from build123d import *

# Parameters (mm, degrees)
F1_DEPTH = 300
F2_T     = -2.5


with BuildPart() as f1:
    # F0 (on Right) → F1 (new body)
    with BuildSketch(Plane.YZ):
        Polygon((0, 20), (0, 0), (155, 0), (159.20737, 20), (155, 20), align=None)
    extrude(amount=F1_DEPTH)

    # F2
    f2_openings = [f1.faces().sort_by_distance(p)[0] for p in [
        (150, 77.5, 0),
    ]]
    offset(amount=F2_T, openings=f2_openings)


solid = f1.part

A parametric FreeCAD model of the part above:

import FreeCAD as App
import Part
import Sketcher

V = App.Vector
Q = App.Units.Quantity


def faces_at(feature, points):
    """Names of the faces that lie closest to the given points."""
    faces = feature.Shape.Faces
    near = lambda p: min(range(len(faces)), key=lambda i: faces[i].distToShape(Part.Vertex(*p))[0])
    return sorted({f"Face{near(p) + 1}" for p in points})

doc = App.newDocument("Part")
body = doc.addObject("PartDesign::Body", "Body")

# Sketch on YZ plane
sketch1 = doc.addObject("Sketcher::SketchObject", "Sketch")
body.addObject(sketch1)
sketch1.AttachmentSupport = (doc.YZ_Plane, [""])
sketch1.MapMode = "FlatFace"
sketch1.addGeometry([
    Part.LineSegment(V(0, 20, 0), V(0, 0, 0)),
    Part.LineSegment(V(0, 0, 0), V(155, 0, 0)),
    Part.LineSegment(V(155, 0, 0), V(159.20737, 20, 0)),
    Part.LineSegment(V(159.20737, 20, 0), V(0, 20, 0)),
], False)
sketch1.addConstraint([
    Sketcher.Constraint("Coincident", 0, 2, 1, 1),
    Sketcher.Constraint("Coincident", 1, 2, 2, 1),
    Sketcher.Constraint("Coincident", 2, 2, 3, 1),
    Sketcher.Constraint("Coincident", 3, 2, 0, 1),
    Sketcher.Constraint("Vertical", 0),
    Sketcher.Constraint("Horizontal", 1),
    Sketcher.Constraint("Horizontal", 3),
    Sketcher.Constraint("Coincident", 0, 2, -1, 1),
    Sketcher.Constraint("DistanceX", 1, 1, 1, 2, Q("155 mm")),
    Sketcher.Constraint("DistanceY", 0, 2, 0, 1, Q("20 mm")),
    Sketcher.Constraint("Angle", 2, Q("78.120001 deg")),
])
pad1 = doc.addObject("PartDesign::Pad", "Pad")
body.addObject(pad1)
pad1.Profile = sketch1
pad1.Length = 300
doc.recompute()

thickness = doc.addObject("PartDesign::Thickness", "Thickness")
body.addObject(thickness)
thickness.Base = (pad1, faces_at(pad1, [(150, 77.5, 0)]))
thickness.Value = 2.5
thickness.Reversed = True
thickness.Join = "Arc"

doc.recompute()
